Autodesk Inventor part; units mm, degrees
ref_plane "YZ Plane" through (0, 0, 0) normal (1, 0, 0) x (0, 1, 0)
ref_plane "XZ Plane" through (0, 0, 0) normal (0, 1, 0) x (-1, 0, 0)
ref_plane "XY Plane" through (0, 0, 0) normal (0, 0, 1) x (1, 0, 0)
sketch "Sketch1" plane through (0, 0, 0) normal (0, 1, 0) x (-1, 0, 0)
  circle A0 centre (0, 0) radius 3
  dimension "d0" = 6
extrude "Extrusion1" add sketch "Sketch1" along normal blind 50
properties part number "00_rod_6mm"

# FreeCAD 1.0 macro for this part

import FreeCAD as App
import Part
import Sketcher

doc = App.newDocument("Part")
body = doc.addObject("PartDesign::Body", "Body")

sketch1 = body.newObject("Sketcher::SketchObject", "Sketch")
sketch1.AttachmentSupport = (doc.getObject("XZ_Plane"), [""])
sketch1.MapMode = "FlatFace"
sketch1.addGeometry(Part.Circle(App.Vector(0, 0, 0), App.Vector(0, 0, 1), 3), False)
sketch1.addConstraint([
    Sketcher.Constraint("Coincident", 0, 3, -1, 1),
    Sketcher.Constraint("Diameter", 0, 6.0),
])
pad1 = body.newObject("PartDesign::Pad", "Pad")
pad1.Profile = sketch1
pad1.Length = 50
pad1.Reversed = True

doc.recompute()
